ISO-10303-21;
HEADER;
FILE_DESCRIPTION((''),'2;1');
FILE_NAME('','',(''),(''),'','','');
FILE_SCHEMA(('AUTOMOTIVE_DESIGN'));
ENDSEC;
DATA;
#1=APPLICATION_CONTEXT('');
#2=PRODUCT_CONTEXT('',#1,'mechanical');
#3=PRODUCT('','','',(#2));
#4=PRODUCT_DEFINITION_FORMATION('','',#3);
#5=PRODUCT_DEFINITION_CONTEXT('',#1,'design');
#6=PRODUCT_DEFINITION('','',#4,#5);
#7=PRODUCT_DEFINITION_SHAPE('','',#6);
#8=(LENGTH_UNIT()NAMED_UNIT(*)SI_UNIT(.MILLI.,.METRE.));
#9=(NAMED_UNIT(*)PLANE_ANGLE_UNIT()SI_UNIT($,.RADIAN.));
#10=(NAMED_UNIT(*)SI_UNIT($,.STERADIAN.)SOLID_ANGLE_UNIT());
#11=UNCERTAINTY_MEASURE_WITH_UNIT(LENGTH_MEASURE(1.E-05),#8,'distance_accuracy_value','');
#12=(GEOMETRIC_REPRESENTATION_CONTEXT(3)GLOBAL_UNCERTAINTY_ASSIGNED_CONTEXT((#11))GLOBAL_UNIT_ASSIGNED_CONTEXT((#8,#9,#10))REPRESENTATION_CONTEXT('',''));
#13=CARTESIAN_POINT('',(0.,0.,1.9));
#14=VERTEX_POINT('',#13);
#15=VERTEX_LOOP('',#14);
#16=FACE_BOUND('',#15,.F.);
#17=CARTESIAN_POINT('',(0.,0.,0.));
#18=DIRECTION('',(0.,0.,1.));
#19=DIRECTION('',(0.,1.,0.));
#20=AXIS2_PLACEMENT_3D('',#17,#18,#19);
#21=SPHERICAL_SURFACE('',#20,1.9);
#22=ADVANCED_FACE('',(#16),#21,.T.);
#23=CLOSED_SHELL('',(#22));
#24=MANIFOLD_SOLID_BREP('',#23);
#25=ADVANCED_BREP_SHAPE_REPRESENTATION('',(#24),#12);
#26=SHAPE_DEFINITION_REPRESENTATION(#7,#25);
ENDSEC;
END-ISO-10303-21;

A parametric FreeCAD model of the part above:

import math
import FreeCAD as App
import Part
import Sketcher

V = App.Vector
Q = App.Units.Quantity

doc = App.newDocument("Part")
params = doc.addObject("Spreadsheet::Sheet", "Params")
for row, (alias, value) in enumerate([
    ("sketch1_radius", "1.9 mm"),
    ("revolution_angle", "360 deg"),
], start=1):
    params.set(f"A{row}", alias)
    params.set(f"B{row}", "=" + value)
    params.setAlias(f"B{row}", alias)

body = doc.addObject("PartDesign::Body", "Body")

sketch1 = body.newObject("Sketcher::SketchObject", "Sketch")
sketch1.AttachmentSupport = (doc.getObject("YZ_Plane"), [""])
sketch1.MapMode = "FlatFace"
sketch1.addGeometry(Part.LineSegment(V(0, 1.9, 0), V(0, -1.9, 0)), False)
sketch1.addGeometry(Part.ArcOfCircle(Part.Circle(V(0, 0, 0), V(0, 0, 1), 1.9), math.radians(-90), math.radians(90)), False)
sketch1.addConstraint(Sketcher.Constraint("Coincident", 0, 1, 1, 2))
sketch1.addConstraint(Sketcher.Constraint("Coincident", 1, 1, 0, 2))
sketch1.addConstraint(Sketcher.Constraint("Vertical", 0))
sketch1.addConstraint(Sketcher.Constraint("Coincident", 1, 3, -1, 1))
sketch1.addConstraint(Sketcher.Constraint("PointOnObject", 0, 1, -2))
sketch1.addConstraint(Sketcher.Constraint("Radius", 1, Q("1.9 mm")))
sketch1.setExpression("Constraints[5]", "Params.sketch1_radius")
revolution = body.newObject("PartDesign::Revolution", "Revolution")
revolution.Profile = sketch1
revolution.ReferenceAxis = (sketch1, ["V_Axis"])
revolution.setExpression("Angle", "Params.revolution_angle")

doc.recompute()
